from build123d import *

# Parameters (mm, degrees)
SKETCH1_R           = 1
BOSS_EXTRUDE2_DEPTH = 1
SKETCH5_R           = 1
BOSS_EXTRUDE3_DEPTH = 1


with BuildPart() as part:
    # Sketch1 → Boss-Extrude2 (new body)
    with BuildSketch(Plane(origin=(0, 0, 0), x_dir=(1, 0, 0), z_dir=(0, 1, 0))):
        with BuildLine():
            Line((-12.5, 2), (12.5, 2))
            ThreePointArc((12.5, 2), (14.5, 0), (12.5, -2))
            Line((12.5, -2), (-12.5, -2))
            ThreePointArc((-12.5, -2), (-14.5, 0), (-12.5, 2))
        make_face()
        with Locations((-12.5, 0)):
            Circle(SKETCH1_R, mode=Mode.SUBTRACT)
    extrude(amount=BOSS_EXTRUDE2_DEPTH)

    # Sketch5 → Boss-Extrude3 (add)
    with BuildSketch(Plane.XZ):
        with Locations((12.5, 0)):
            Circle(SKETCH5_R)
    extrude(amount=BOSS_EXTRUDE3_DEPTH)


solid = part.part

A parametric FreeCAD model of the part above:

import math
import FreeCAD as App
import Part
import Sketcher
Q = App.Units.Quantity

doc = App.newDocument("Part")
body = doc.addObject("PartDesign::Body", "Body")

sketch1 = body.newObject("Sketcher::SketchObject", "Sketch")
sketch1.AttachmentSupport = (doc.getObject("XZ_Plane"), [""])
sketch1.MapMode = "FlatFace"
sketch1.addGeometry([
    Part.LineSegment(App.Vector(12.5, -2, 0), App.Vector(-12.5, -2, 0)),
    Part.ArcOfCircle(Part.Circle(App.Vector(-12.5, 0, 0), App.Vector(0, 0, 1), 2), math.radians(90), math.radians(270)),
    Part.LineSegment(App.Vector(-12.5, 2, 0), App.Vector(12.5, 2, 0)),
    Part.ArcOfCircle(Part.Circle(App.Vector(12.5, 0, 0), App.Vector(0, 0, 1), 2), math.radians(-90), math.radians(90)),
    Part.Circle(App.Vector(-12.5, 0, 0), App.Vector(0, 0, 1), 1),
], False)
sketch1.addConstraint([
    Sketcher.Constraint("Tangent", 0, 2, 1, 2),
    Sketcher.Constraint("Tangent", 1, 1, 2, 1),
    Sketcher.Constraint("Tangent", 2, 2, 3, 2),
    Sketcher.Constraint("Tangent", 3, 1, 0, 1),
    Sketcher.Constraint("Horizontal", 0),
    Sketcher.Constraint("Horizontal", 2),
    Sketcher.Constraint("Coincident", 4, 3, 1, 3),
    Sketcher.Constraint("Symmetric", 1, 3, 3, 3, -1, 1),
    Sketcher.Constraint("Diameter", 4, Q("2 mm")),
    Sketcher.Constraint("Radius", 1, Q("2 mm")),
    Sketcher.Constraint("DistanceX", 0, 2, 0, 1, Q("25 mm")),
])
pad1 = body.newObject("PartDesign::Pad", "Pad")
pad1.Profile = sketch1
pad1.Length = 1
pad1.Reversed = True

sketch2 = body.newObject("Sketcher::SketchObject", "Sketch001")
sketch2.AttachmentSupport = (doc.getObject("XZ_Plane"), [""])
sketch2.MapMode = "FlatFace"
sketch2.addGeometry(Part.Circle(App.Vector(12.5, 0, 0), App.Vector(0, 0, 1), 1), False)
sketch2.addConstraint([
    Sketcher.Constraint("PointOnObject", 0, 3, -1),
    Sketcher.Constraint("Diameter", 0, Q("2 mm")),
    Sketcher.Constraint("DistanceX", -1, 1, 0, 3, Q("12.5 mm")),
])
pad2 = body.newObject("PartDesign::Pad", "Pad001")
pad2.Profile = sketch2
pad2.Length = 1

doc.recompute()
